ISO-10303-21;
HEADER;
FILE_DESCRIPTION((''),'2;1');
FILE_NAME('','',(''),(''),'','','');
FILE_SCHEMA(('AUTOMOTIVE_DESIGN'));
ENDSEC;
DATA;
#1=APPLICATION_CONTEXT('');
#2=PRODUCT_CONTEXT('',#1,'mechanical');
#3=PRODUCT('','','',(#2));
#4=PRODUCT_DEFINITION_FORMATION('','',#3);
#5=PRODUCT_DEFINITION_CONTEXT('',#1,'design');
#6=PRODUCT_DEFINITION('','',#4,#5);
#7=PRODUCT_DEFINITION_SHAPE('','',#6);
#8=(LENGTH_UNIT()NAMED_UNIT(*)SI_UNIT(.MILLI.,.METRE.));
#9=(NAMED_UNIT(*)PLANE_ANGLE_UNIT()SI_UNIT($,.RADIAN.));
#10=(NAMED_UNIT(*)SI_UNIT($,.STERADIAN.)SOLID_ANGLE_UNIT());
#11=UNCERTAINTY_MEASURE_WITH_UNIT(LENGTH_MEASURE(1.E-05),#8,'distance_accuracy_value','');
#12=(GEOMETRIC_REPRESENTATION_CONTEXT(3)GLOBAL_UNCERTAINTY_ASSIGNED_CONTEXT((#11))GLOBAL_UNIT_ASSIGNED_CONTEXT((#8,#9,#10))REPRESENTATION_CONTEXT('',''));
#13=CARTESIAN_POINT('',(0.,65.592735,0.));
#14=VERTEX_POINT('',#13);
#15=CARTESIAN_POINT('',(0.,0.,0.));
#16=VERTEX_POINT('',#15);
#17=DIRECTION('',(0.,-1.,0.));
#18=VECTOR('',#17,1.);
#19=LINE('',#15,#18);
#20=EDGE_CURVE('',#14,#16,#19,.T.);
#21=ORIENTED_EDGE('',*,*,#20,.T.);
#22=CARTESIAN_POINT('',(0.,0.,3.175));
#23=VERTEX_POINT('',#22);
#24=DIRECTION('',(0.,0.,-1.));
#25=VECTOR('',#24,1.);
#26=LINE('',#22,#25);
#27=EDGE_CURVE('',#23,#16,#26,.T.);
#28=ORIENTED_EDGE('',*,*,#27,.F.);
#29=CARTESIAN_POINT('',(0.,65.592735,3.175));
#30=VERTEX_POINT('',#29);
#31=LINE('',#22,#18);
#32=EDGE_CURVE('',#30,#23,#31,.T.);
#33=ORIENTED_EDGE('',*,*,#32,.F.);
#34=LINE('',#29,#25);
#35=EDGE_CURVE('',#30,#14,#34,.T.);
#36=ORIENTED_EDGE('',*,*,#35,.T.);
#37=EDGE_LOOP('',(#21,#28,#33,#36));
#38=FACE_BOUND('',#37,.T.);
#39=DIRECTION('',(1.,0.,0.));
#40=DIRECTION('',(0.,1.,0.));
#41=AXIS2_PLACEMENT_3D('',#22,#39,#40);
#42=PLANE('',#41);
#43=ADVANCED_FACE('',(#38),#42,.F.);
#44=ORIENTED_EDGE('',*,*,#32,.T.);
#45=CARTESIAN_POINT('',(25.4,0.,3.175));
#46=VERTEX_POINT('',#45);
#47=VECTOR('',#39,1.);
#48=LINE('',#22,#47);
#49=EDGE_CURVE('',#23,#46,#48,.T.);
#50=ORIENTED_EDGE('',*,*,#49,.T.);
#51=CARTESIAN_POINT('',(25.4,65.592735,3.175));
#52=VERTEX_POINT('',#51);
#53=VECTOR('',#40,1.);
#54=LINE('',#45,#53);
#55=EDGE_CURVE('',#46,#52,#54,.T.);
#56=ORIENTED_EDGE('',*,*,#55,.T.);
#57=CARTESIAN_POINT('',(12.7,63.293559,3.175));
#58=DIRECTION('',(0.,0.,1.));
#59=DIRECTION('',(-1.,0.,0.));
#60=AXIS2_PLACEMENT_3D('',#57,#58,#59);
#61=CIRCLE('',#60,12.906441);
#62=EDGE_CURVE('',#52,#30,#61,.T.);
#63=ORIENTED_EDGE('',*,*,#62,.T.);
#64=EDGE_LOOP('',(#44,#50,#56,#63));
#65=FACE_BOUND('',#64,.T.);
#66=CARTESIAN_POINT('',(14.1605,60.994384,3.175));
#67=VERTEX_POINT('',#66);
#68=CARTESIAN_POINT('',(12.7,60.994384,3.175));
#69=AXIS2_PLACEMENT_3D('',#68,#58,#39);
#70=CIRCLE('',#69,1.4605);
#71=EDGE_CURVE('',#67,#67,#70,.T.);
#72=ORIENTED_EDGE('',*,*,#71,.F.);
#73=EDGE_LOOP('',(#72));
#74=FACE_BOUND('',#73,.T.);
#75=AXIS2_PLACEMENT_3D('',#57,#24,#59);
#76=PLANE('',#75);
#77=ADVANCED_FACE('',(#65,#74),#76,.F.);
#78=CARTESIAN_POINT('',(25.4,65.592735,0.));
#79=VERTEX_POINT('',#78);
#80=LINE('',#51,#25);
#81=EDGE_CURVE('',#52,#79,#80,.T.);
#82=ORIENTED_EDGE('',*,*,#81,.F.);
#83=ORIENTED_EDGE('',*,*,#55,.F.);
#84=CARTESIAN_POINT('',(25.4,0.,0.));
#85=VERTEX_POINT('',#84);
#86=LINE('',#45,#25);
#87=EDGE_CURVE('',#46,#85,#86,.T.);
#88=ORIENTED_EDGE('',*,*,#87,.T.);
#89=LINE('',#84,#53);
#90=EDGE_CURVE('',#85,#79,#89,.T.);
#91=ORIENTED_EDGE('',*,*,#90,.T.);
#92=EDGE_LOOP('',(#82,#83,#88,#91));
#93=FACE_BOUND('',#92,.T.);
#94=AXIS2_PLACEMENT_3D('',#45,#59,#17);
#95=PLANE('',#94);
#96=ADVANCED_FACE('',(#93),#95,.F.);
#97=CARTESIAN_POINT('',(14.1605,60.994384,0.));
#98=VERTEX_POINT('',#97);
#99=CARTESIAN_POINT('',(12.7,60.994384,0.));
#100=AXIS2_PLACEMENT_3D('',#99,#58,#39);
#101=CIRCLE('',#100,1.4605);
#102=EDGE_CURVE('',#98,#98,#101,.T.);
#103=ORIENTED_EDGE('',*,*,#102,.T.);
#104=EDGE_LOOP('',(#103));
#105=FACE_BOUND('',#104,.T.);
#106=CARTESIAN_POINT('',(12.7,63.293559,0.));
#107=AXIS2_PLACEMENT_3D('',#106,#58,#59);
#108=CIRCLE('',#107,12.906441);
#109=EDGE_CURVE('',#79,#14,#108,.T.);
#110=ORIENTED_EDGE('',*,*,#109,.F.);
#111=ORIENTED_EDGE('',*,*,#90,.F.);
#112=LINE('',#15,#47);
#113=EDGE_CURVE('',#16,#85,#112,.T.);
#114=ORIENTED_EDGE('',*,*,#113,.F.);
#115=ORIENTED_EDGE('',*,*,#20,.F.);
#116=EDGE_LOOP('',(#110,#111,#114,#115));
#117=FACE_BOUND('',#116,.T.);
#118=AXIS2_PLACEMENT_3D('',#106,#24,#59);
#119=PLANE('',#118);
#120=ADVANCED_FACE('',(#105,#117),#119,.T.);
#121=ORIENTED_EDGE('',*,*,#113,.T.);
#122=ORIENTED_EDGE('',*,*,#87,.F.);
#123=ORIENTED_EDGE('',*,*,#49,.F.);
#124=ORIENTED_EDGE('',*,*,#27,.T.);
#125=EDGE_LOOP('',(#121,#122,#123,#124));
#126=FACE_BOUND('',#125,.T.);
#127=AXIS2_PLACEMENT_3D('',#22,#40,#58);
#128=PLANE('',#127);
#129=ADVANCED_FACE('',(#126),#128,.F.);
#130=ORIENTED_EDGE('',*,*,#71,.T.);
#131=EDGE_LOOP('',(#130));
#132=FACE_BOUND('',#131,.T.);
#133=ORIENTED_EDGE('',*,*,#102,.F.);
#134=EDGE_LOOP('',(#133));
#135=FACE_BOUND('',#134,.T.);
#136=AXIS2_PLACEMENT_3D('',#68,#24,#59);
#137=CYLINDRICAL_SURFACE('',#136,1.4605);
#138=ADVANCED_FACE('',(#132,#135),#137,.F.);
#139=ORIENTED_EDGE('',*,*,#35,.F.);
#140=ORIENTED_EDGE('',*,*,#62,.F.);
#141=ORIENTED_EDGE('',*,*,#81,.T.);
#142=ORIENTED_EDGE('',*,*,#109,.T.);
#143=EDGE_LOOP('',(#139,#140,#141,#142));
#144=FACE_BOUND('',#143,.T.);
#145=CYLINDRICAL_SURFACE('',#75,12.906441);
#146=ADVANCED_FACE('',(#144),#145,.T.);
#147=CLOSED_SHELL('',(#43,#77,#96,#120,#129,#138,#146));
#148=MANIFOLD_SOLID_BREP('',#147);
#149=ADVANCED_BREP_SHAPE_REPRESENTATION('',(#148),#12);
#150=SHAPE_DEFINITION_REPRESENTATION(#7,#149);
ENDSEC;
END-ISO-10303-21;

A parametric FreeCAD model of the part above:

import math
import FreeCAD as App
import Part
import Sketcher
from FreeCAD import Vector
Q = App.Units.Quantity

doc = App.newDocument("Part")
body = doc.addObject("PartDesign::Body", "Body")

# Sketch on XY plane
sketch1 = body.newObject("Sketcher::SketchObject", "Sketch")
sketch1.AttachmentSupport = (doc.getObject("XY_Plane"), [""])
sketch1.MapMode = "FlatFace"
sketch1.addGeometry([
    Part.LineSegment(Vector(0, 0, 0), Vector(25.4, 0, 0)),  # 0
    Part.LineSegment(Vector(25.4, 0, 0), Vector(25.4, 65.6, 0)),  # 1
    Part.ArcOfCircle(Part.Circle(Vector(12.7, 63.3, 0), Vector(0, 0, 1), 12.9), math.radians(10), math.radians(170)),  # 2
    Part.LineSegment(Vector(0, 65.6, 0), Vector(0, 0, 0)),  # 3
    Part.Circle(Vector(12.7, 61, 0), Vector(0, 0, 1), 1.5),  # 4
], False)
sketch1.addConstraint([
    Sketcher.Constraint("Coincident", 0, 2, 1, 1),
    Sketcher.Constraint("Coincident", 1, 2, 2, 1),
    Sketcher.Constraint("Coincident", 2, 2, 3, 1),
    Sketcher.Constraint("Coincident", 3, 2, 0, 1),
    Sketcher.Constraint("Horizontal", 0),
    Sketcher.Constraint("Vertical", 1),
    Sketcher.Constraint("Vertical", 3),
    Sketcher.Constraint("Coincident", 3, 2, -1, 1),
    Sketcher.Constraint("Horizontal", 1, 2, 2, 2),
    Sketcher.Constraint("Vertical", 2, 3, 4, 3),
    Sketcher.Constraint("DistanceX", 0, 1, 0, 2, Q("1 in")),
    Sketcher.Constraint("Diameter", 4, Q("0.115 in")),
    Sketcher.Constraint("Radius", 2, Q("12.906441 mm")),
    Sketcher.Constraint("DistanceY", 1, 1, 1, 2, Q("65.592735 mm")),
    Sketcher.Constraint("DistanceY", 4, 3, 1, 2, Q("4.598351 mm")),
])
pad1 = body.newObject("PartDesign::Pad", "Pad")
pad1.Profile = sketch1
pad1.Length = Q("0.125 in")

doc.recompute()
